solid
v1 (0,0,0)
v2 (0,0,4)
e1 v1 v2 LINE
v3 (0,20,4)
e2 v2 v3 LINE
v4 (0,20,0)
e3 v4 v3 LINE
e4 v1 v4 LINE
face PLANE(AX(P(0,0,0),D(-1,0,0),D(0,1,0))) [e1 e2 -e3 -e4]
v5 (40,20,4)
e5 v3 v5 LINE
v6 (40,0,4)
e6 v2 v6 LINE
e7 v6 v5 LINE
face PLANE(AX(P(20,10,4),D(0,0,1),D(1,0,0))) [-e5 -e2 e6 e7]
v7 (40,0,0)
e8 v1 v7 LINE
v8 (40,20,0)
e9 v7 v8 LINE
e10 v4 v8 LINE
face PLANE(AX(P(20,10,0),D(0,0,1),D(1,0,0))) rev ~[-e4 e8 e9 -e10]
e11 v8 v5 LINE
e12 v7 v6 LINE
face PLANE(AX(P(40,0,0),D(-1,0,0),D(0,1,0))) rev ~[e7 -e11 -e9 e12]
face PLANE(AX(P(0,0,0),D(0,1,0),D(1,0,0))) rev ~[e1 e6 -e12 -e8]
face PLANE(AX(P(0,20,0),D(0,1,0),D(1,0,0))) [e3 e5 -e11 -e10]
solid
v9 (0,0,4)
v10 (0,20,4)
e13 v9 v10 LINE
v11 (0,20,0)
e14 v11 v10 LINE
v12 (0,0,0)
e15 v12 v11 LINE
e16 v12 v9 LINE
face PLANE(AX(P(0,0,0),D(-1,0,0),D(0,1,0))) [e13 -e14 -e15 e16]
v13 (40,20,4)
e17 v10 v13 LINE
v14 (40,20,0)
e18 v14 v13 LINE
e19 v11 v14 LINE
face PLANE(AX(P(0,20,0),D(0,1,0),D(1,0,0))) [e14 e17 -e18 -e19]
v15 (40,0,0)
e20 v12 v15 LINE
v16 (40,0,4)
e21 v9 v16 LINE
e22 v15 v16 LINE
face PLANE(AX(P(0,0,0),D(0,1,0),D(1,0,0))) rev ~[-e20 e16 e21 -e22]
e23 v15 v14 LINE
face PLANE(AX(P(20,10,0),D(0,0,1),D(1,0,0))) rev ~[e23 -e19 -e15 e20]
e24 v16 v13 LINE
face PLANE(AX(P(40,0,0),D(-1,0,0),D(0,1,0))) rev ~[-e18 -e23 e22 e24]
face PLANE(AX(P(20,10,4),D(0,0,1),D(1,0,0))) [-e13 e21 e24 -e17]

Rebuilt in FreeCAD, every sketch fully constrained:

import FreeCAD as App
import Part
import Sketcher
Q = App.Units.Quantity

doc = App.newDocument("Part")
body = doc.addObject("PartDesign::Body", "Body")

# Sketch on XY plane
sketch1 = body.newObject("Sketcher::SketchObject", "Sketch")
sketch1.AttachmentSupport = (doc.getObject("XY_Plane"), [""])
sketch1.MapMode = "FlatFace"
sketch1.addGeometry([
    Part.LineSegment(App.Vector(0, 20, 0), App.Vector(0, 0, 0)),
    Part.LineSegment(App.Vector(0, 0, 0), App.Vector(40, 0, 0)),
    Part.LineSegment(App.Vector(40, 0, 0), App.Vector(40, 20, 0)),
    Part.LineSegment(App.Vector(40, 20, 0), App.Vector(0, 20, 0)),
], False)
sketch1.addConstraint([
    Sketcher.Constraint("Coincident", 0, 2, 1, 1),
    Sketcher.Constraint("Coincident", 1, 2, 2, 1),
    Sketcher.Constraint("Coincident", 2, 2, 3, 1),
    Sketcher.Constraint("Coincident", 3, 2, 0, 1),
    Sketcher.Constraint("Vertical", 0),
    Sketcher.Constraint("Horizontal", 1),
    Sketcher.Constraint("Vertical", 2),
    Sketcher.Constraint("Horizontal", 3),
    Sketcher.Constraint("Coincident", 0, 2, -1, 1),
    Sketcher.Constraint("DistanceX", 1, 1, 1, 2, Q("40 mm")),
    Sketcher.Constraint("DistanceY", 0, 2, 0, 1, Q("20 mm")),
])
pad1 = body.newObject("PartDesign::Pad", "Pad")
pad1.Profile = sketch1
pad1.Length = 4
body2 = doc.addObject("PartDesign::Body", "Body001")

# Sketch on XY plane
sketch2 = body2.newObject("Sketcher::SketchObject", "Sketch001")
sketch2.AttachmentSupport = (doc.getObject("XY_Plane001"), [""])
sketch2.MapMode = "FlatFace"
sketch2.addGeometry([
    Part.LineSegment(App.Vector(0, 20, 0), App.Vector(0, 0, 0)),
    Part.LineSegment(App.Vector(0, 0, 0), App.Vector(40, 0, 0)),
    Part.LineSegment(App.Vector(40, 0, 0), App.Vector(40, 20, 0)),
    Part.LineSegment(App.Vector(40, 20, 0), App.Vector(0, 20, 0)),
], False)
sketch2.addConstraint([
    Sketcher.Constraint("Coincident", 0, 2, 1, 1),
    Sketcher.Constraint("Coincident", 1, 2, 2, 1),
    Sketcher.Constraint("Coincident", 2, 2, 3, 1),
    Sketcher.Constraint("Coincident", 3, 2, 0, 1),
    Sketcher.Constraint("Vertical", 0),
    Sketcher.Constraint("Horizontal", 1),
    Sketcher.Constraint("Vertical", 2),
    Sketcher.Constraint("Horizontal", 3),
    Sketcher.Constraint("Coincident", 0, 2, -1, 1),
    Sketcher.Constraint("DistanceX", 1, 1, 1, 2, Q("40 mm")),
    Sketcher.Constraint("DistanceY", 0, 2, 0, 1, Q("20 mm")),
])
pad2 = body2.newObject("PartDesign::Pad", "Pad001")
pad2.Profile = sketch2
pad2.Length = 4

doc.recompute()
